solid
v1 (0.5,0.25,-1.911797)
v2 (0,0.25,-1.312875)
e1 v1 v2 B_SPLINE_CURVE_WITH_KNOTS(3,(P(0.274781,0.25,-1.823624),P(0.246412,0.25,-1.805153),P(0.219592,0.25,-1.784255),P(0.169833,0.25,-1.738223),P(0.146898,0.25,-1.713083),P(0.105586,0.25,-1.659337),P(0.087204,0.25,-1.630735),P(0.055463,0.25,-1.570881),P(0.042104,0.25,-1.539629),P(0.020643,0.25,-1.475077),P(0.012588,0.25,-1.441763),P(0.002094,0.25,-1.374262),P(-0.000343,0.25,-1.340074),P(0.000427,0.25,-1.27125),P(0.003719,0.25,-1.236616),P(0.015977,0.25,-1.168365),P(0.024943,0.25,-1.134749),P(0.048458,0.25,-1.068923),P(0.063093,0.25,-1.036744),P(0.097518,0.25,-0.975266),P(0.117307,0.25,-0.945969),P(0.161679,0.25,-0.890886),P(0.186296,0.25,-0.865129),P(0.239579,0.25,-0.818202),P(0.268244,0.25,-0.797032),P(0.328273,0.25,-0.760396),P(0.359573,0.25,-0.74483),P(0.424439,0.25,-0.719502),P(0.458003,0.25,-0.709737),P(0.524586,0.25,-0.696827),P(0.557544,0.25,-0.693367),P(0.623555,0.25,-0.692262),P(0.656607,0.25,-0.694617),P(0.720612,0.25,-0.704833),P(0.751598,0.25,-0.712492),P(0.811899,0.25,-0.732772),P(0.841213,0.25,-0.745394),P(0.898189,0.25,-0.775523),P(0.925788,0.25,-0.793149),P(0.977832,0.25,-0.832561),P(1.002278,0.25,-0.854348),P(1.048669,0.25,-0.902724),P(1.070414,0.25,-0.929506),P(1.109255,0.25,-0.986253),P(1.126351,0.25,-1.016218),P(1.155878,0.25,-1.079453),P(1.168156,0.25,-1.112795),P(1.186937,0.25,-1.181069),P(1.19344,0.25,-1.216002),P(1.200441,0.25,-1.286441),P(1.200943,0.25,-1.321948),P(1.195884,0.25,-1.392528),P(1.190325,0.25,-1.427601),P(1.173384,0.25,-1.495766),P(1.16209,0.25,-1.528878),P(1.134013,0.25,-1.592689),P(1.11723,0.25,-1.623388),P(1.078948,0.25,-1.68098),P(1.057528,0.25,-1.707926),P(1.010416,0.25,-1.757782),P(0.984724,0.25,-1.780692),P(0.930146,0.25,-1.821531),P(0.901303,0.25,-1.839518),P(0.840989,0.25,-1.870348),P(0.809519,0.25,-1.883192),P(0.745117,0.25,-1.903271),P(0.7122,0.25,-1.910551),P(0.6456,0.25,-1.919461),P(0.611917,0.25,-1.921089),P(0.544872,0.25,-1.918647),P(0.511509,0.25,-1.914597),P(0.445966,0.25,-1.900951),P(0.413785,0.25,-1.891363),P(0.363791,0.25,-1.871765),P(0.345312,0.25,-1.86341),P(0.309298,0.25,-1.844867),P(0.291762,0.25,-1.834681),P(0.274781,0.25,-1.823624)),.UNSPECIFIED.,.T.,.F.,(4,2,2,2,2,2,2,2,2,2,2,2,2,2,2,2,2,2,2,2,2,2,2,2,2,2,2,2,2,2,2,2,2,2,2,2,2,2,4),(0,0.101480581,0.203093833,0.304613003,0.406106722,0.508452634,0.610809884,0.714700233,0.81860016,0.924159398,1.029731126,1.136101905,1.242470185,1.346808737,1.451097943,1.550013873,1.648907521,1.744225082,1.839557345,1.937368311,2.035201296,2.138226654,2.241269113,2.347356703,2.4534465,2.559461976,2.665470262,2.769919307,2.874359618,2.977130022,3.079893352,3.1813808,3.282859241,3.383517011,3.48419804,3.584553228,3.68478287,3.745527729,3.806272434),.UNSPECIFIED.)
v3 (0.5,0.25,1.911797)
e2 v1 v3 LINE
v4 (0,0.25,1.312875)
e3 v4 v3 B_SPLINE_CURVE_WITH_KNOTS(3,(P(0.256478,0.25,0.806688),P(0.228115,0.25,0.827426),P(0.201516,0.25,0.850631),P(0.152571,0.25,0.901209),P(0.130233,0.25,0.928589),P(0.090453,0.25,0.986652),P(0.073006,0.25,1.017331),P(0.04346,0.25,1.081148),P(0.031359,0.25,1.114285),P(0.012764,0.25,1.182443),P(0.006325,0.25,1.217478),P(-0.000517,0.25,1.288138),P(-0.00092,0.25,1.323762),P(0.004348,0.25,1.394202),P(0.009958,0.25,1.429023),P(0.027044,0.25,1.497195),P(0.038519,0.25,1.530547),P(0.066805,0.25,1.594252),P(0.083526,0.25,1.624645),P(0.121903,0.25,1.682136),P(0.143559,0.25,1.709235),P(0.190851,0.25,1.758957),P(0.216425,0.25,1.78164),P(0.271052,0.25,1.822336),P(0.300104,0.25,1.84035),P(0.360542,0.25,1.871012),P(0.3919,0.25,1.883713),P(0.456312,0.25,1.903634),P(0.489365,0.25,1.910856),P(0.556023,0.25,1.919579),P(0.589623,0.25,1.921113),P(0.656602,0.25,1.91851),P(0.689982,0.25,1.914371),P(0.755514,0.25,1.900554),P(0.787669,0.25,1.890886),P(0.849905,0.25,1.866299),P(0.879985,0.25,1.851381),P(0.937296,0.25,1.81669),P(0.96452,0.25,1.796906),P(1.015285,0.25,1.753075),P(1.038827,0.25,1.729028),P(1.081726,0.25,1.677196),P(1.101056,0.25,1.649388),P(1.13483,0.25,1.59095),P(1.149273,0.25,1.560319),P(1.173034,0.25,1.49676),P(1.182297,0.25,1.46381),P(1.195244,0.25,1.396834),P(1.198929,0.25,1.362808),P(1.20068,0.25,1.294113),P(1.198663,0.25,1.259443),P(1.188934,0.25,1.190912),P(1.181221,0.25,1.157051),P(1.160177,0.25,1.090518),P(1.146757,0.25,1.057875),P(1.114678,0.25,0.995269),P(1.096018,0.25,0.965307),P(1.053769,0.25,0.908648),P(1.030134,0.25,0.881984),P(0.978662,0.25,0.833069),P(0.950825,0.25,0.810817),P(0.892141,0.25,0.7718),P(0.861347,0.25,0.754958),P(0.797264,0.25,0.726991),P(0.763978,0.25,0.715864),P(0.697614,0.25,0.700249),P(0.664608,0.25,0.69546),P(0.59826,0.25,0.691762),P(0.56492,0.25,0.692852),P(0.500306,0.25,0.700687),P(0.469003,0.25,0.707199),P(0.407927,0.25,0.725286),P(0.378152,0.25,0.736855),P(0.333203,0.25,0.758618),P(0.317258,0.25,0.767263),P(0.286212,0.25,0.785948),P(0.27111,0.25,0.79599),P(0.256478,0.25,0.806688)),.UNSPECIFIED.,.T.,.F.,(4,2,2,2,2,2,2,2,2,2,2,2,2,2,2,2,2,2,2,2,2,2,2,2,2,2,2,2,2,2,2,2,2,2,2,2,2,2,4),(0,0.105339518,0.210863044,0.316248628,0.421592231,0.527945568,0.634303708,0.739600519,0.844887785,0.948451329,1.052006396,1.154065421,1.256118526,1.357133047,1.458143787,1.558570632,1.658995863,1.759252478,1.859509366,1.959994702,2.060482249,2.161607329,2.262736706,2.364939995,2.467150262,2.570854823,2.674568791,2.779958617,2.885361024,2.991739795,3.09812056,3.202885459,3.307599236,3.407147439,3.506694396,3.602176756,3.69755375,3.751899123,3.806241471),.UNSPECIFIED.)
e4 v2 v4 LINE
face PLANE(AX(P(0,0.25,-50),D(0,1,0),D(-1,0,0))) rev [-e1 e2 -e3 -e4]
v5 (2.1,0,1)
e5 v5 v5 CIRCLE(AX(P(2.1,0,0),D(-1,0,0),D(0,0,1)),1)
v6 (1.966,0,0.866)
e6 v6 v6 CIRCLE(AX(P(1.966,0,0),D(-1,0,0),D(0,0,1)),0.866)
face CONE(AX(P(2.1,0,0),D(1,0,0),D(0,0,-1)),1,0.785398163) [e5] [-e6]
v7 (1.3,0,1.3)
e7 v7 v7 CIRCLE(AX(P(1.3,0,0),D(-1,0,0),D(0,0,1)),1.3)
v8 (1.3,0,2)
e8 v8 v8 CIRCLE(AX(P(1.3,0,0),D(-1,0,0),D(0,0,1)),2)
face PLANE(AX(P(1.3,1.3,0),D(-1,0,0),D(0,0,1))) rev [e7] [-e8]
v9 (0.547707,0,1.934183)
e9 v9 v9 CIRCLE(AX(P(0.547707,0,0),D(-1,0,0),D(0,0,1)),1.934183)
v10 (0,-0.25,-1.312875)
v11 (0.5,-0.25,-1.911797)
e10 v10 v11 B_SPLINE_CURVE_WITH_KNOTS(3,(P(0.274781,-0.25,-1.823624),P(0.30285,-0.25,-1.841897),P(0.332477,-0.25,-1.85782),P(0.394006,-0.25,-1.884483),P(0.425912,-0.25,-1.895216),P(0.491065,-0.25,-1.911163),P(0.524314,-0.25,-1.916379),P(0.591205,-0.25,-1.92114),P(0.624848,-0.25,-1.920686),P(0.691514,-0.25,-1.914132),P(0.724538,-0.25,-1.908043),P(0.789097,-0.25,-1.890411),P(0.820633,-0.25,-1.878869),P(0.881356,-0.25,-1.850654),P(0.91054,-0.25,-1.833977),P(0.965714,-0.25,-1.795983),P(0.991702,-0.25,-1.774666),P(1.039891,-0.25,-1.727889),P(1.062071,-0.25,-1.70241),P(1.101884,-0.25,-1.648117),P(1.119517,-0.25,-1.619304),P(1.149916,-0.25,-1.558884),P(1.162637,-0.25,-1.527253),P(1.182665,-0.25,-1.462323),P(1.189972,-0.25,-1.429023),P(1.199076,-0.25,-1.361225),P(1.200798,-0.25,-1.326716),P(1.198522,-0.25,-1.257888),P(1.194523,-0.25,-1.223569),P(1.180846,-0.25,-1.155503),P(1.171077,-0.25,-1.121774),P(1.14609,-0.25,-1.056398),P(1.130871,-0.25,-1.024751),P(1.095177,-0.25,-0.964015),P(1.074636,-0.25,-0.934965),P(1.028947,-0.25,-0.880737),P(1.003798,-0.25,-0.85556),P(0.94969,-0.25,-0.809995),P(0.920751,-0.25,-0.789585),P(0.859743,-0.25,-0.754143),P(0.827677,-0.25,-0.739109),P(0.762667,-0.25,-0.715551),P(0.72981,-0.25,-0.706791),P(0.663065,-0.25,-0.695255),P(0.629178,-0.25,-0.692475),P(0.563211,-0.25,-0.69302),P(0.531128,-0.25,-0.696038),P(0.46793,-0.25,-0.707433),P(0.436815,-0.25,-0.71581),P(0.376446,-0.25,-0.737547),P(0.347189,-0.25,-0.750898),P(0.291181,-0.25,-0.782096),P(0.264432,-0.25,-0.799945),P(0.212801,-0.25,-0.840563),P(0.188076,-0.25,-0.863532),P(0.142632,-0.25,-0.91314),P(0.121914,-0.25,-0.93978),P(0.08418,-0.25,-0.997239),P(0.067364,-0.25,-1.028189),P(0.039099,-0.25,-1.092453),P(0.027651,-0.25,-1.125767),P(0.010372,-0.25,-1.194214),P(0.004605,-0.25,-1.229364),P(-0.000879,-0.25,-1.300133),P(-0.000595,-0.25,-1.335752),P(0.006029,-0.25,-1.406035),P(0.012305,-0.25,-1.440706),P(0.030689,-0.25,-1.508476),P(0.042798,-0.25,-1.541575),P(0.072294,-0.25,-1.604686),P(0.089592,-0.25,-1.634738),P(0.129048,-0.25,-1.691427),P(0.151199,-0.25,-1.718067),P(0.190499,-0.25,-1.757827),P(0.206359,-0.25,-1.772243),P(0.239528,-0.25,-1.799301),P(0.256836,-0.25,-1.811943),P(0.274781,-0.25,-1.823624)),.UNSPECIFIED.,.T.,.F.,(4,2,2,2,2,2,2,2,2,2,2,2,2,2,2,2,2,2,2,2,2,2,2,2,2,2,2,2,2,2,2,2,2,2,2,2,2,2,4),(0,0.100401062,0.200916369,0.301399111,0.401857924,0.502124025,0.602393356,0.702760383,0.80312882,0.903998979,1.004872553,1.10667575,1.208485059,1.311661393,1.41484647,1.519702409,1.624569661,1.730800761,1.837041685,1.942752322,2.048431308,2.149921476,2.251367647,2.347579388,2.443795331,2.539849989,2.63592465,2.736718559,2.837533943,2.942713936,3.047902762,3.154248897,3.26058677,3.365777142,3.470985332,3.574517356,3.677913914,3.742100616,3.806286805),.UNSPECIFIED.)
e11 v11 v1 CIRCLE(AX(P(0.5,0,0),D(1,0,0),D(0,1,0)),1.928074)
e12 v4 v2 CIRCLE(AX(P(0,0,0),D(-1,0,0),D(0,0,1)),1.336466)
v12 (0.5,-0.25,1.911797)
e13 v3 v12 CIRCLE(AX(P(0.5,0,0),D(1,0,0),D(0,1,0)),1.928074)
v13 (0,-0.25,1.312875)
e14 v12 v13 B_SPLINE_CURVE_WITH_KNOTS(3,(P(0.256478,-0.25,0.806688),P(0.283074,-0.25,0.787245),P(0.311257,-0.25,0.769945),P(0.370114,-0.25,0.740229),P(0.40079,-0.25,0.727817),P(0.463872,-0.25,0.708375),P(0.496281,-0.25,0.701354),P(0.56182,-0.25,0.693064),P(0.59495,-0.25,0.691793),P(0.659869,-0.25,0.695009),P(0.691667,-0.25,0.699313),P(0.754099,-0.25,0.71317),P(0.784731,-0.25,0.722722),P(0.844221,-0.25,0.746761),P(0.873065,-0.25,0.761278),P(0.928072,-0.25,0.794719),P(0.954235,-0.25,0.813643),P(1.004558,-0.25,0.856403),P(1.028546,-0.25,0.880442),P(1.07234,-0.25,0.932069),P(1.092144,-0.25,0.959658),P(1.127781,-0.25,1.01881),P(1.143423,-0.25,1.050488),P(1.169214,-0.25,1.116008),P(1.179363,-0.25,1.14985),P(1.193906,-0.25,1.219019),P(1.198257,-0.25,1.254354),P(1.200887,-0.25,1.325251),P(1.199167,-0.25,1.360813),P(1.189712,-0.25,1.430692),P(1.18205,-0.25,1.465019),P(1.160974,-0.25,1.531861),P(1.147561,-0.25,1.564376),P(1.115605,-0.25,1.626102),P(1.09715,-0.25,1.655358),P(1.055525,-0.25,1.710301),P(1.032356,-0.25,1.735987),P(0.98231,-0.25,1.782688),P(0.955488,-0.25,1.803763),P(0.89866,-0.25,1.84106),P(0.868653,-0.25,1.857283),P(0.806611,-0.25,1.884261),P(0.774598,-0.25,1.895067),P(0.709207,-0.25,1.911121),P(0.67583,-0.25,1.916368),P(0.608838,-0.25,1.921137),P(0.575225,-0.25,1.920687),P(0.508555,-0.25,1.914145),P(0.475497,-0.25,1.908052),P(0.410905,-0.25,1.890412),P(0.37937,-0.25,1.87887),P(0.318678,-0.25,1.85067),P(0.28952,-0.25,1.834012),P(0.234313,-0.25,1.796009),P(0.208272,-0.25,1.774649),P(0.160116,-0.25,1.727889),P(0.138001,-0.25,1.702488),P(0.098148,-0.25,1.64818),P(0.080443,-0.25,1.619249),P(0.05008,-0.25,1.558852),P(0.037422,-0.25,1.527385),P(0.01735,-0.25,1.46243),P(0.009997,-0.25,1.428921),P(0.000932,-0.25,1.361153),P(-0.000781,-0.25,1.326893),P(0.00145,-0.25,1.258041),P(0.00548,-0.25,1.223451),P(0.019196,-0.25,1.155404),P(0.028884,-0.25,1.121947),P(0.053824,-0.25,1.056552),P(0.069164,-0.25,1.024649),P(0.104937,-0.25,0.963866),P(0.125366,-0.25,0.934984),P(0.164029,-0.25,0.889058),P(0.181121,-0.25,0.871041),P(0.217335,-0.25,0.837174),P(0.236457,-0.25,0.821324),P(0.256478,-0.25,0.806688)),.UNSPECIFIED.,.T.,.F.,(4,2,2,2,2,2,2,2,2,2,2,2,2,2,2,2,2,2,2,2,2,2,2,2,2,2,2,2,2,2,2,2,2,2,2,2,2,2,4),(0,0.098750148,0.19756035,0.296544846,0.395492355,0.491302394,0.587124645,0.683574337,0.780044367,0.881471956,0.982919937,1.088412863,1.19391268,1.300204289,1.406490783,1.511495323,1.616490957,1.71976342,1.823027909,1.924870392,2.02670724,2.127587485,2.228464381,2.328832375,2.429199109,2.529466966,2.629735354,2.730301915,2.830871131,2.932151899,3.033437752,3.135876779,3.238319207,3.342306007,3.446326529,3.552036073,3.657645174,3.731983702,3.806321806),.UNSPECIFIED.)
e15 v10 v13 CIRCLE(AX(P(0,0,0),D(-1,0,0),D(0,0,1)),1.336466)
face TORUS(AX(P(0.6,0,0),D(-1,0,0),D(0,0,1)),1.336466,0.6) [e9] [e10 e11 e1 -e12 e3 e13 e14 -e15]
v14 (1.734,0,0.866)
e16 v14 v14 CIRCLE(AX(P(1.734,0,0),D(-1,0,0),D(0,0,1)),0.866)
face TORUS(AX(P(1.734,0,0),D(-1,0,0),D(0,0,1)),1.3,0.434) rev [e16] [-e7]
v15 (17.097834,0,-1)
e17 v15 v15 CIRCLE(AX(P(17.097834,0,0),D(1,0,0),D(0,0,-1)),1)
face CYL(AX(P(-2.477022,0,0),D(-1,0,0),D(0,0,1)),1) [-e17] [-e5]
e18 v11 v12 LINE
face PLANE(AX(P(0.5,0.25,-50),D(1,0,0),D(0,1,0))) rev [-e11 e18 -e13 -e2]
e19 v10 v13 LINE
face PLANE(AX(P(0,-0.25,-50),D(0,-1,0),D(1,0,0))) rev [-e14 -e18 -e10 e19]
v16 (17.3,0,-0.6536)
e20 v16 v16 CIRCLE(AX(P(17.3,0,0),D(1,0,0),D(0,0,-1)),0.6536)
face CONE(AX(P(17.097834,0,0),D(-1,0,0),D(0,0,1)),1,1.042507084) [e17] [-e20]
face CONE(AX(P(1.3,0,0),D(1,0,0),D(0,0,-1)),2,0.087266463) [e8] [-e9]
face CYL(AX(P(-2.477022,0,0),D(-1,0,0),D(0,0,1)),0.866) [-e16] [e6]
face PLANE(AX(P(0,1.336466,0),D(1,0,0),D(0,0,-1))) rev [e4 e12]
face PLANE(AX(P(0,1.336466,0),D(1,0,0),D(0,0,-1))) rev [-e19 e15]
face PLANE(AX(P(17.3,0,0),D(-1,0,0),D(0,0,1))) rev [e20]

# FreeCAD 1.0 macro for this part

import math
import FreeCAD as App
import Part
import Sketcher
from FreeCAD import Vector
Q = App.Units.Quantity


def add_polygon(sketch, points):
    """Adds a closed chain of lines whose ends are joined by coincident constraints."""
    first, n = sketch.GeometryCount, len(points)
    for a, b in zip(points, points[1:] + points[:1]):
        sketch.addGeometry(Part.LineSegment(App.Vector(*a, 0), App.Vector(*b, 0)), False)
    for i in range(n):
        sketch.addConstraint(Sketcher.Constraint("Coincident", first + i, 2, first + (i + 1) % n, 1))

doc = App.newDocument("Part")
body = doc.addObject("PartDesign::Body", "Body")

sketch1 = body.newObject("Sketcher::SketchObject", "Sketch")
sketch1.AttachmentSupport = (doc.getObject("XY_Plane"), [""])
sketch1.MapMode = "FlatFace"
sketch1.addGeometry([
    Part.LineSegment(Vector(0, 0, 0), Vector(17.3, 0, 0)),
    Part.LineSegment(Vector(17.3, 0, 0), Vector(17.3, 1, 0)),
    Part.LineSegment(Vector(17.3, 1, 0), Vector(2.1, 1, 0)),
    Part.LineSegment(Vector(2.1, 1, 0), Vector(1.97, 0.87, 0)),
    Part.LineSegment(Vector(1.97, 0.87, 0), Vector(1.73, 0.87, 0)),
    Part.ArcOfCircle(Part.Circle(Vector(1.73, 1.3, 0), Vector(0, 0, 1), 0.43), math.radians(180), math.radians(270)),
    Part.LineSegment(Vector(1.3, 1.3, 0), Vector(1.3, 2, 0)),
    Part.LineSegment(Vector(1.3, 2, 0), Vector(0.55, 1.93, 0)),
    Part.ArcOfCircle(Part.Circle(Vector(0.6, 1.34, 0), Vector(0, 0, 1), 0.6), math.radians(95), math.radians(180)),
    Part.LineSegment(Vector(0, 1.34, 0), Vector(0, 0, 0)),
], False)
sketch1.addConstraint([
    Sketcher.Constraint("Coincident", 0, 2, 1, 1),
    Sketcher.Constraint("Coincident", 1, 2, 2, 1),
    Sketcher.Constraint("Coincident", 2, 2, 3, 1),
    Sketcher.Constraint("Coincident", 3, 2, 4, 1),
    Sketcher.Constraint("Tangent", 4, 2, 5, 2),
    Sketcher.Constraint("Tangent", 5, 1, 6, 1),
    Sketcher.Constraint("Coincident", 6, 2, 7, 1),
    Sketcher.Constraint("Tangent", 7, 2, 8, 1),
    Sketcher.Constraint("Tangent", 8, 2, 9, 1),
    Sketcher.Constraint("Coincident", 9, 2, 0, 1),
    Sketcher.Constraint("Horizontal", 0),
    Sketcher.Constraint("Vertical", 1),
    Sketcher.Constraint("Horizontal", 2),
    Sketcher.Constraint("Horizontal", 4),
    Sketcher.Constraint("Vertical", 6),
    Sketcher.Constraint("Vertical", 9),
    Sketcher.Constraint("Coincident", 9, 2, -1, 1),
    Sketcher.Constraint("Radius", 8, 0.6),
    Sketcher.Constraint("DistanceY", 1, 1, 1, 2, 1.0),
    Sketcher.Constraint("Angle", 3, Q("-135 deg")),
    Sketcher.Constraint("Angle", 7, Q("-175 deg")),
    Sketcher.Constraint("DistanceX", 0, 1, 0, 2, 17.3),
    Sketcher.Constraint("DistanceX", 2, 2, 2, 1, 15.2),
    Sketcher.Constraint("DistanceY", 6, 1, 6, 2, 0.7),
    Sketcher.Constraint("DistanceY", -1, 1, 6, 2, 2.0),
    Sketcher.Constraint("Radius", 5, 0.434),
    Sketcher.Constraint("DistanceX", -1, 1, 5, 1, 1.3),
])
revolution = body.newObject("PartDesign::Revolution", "Revolution")
revolution.Profile = sketch1
revolution.ReferenceAxis = (sketch1, ["H_Axis"])
revolution.Angle = 360

sketch2 = body.newObject("Sketcher::SketchObject", "Sketch001")
sketch2.AttachmentSupport = (doc.getObject("XY_Plane"), [""])
sketch2.MapMode = "FlatFace"
add_polygon(sketch2, [(0, 0.2), (0, -0.2), (0.5, -0.2), (0.5, 0.2)])
sketch2.addConstraint([
    Sketcher.Constraint("Vertical", 0),
    Sketcher.Constraint("Horizontal", 1),
    Sketcher.Constraint("Vertical", 2),
    Sketcher.Constraint("Horizontal", 3),
    Sketcher.Constraint("Symmetric", 0, 2, 3, 2, -1, 1),
    Sketcher.Constraint("Equal", 3, 0),
    Sketcher.Constraint("DistanceX", 1, 1, 1, 2, 0.5),
])
pocket1 = body.newObject("PartDesign::Pocket", "Pocket")
pocket1.Profile = sketch2
pocket1.Length = 100
pocket1.Midplane = True

sketch3 = body.newObject("Sketcher::SketchObject", "Sketch002")
sketch3.AttachmentSupport = (doc.getObject("XY_Plane"), [""])
sketch3.MapMode = "FlatFace"
add_polygon(sketch3, [(17.5, 1), (17.1, 1), (17.3, 0.65)])
sketch3.addConstraint([
    Sketcher.Constraint("Horizontal", 0),
    Sketcher.Constraint("DistanceX", 0, 2, 0, 1, 0.4),
    Sketcher.Constraint("DistanceY", -1, 1, 0, 2, 1.0),
    Sketcher.Constraint("DistanceX", -1, 1, 1, 2, 17.3),
    Sketcher.Constraint("DistanceY", -1, 1, 1, 2, 0.6536),
    Sketcher.Constraint("Distance", 1, 0.401079),
])
groove = body.newObject("PartDesign::Groove", "Groove")
groove.Profile = sketch3
groove.ReferenceAxis = (sketch3, ["H_Axis"])
groove.Angle = 360

doc.recompute()
